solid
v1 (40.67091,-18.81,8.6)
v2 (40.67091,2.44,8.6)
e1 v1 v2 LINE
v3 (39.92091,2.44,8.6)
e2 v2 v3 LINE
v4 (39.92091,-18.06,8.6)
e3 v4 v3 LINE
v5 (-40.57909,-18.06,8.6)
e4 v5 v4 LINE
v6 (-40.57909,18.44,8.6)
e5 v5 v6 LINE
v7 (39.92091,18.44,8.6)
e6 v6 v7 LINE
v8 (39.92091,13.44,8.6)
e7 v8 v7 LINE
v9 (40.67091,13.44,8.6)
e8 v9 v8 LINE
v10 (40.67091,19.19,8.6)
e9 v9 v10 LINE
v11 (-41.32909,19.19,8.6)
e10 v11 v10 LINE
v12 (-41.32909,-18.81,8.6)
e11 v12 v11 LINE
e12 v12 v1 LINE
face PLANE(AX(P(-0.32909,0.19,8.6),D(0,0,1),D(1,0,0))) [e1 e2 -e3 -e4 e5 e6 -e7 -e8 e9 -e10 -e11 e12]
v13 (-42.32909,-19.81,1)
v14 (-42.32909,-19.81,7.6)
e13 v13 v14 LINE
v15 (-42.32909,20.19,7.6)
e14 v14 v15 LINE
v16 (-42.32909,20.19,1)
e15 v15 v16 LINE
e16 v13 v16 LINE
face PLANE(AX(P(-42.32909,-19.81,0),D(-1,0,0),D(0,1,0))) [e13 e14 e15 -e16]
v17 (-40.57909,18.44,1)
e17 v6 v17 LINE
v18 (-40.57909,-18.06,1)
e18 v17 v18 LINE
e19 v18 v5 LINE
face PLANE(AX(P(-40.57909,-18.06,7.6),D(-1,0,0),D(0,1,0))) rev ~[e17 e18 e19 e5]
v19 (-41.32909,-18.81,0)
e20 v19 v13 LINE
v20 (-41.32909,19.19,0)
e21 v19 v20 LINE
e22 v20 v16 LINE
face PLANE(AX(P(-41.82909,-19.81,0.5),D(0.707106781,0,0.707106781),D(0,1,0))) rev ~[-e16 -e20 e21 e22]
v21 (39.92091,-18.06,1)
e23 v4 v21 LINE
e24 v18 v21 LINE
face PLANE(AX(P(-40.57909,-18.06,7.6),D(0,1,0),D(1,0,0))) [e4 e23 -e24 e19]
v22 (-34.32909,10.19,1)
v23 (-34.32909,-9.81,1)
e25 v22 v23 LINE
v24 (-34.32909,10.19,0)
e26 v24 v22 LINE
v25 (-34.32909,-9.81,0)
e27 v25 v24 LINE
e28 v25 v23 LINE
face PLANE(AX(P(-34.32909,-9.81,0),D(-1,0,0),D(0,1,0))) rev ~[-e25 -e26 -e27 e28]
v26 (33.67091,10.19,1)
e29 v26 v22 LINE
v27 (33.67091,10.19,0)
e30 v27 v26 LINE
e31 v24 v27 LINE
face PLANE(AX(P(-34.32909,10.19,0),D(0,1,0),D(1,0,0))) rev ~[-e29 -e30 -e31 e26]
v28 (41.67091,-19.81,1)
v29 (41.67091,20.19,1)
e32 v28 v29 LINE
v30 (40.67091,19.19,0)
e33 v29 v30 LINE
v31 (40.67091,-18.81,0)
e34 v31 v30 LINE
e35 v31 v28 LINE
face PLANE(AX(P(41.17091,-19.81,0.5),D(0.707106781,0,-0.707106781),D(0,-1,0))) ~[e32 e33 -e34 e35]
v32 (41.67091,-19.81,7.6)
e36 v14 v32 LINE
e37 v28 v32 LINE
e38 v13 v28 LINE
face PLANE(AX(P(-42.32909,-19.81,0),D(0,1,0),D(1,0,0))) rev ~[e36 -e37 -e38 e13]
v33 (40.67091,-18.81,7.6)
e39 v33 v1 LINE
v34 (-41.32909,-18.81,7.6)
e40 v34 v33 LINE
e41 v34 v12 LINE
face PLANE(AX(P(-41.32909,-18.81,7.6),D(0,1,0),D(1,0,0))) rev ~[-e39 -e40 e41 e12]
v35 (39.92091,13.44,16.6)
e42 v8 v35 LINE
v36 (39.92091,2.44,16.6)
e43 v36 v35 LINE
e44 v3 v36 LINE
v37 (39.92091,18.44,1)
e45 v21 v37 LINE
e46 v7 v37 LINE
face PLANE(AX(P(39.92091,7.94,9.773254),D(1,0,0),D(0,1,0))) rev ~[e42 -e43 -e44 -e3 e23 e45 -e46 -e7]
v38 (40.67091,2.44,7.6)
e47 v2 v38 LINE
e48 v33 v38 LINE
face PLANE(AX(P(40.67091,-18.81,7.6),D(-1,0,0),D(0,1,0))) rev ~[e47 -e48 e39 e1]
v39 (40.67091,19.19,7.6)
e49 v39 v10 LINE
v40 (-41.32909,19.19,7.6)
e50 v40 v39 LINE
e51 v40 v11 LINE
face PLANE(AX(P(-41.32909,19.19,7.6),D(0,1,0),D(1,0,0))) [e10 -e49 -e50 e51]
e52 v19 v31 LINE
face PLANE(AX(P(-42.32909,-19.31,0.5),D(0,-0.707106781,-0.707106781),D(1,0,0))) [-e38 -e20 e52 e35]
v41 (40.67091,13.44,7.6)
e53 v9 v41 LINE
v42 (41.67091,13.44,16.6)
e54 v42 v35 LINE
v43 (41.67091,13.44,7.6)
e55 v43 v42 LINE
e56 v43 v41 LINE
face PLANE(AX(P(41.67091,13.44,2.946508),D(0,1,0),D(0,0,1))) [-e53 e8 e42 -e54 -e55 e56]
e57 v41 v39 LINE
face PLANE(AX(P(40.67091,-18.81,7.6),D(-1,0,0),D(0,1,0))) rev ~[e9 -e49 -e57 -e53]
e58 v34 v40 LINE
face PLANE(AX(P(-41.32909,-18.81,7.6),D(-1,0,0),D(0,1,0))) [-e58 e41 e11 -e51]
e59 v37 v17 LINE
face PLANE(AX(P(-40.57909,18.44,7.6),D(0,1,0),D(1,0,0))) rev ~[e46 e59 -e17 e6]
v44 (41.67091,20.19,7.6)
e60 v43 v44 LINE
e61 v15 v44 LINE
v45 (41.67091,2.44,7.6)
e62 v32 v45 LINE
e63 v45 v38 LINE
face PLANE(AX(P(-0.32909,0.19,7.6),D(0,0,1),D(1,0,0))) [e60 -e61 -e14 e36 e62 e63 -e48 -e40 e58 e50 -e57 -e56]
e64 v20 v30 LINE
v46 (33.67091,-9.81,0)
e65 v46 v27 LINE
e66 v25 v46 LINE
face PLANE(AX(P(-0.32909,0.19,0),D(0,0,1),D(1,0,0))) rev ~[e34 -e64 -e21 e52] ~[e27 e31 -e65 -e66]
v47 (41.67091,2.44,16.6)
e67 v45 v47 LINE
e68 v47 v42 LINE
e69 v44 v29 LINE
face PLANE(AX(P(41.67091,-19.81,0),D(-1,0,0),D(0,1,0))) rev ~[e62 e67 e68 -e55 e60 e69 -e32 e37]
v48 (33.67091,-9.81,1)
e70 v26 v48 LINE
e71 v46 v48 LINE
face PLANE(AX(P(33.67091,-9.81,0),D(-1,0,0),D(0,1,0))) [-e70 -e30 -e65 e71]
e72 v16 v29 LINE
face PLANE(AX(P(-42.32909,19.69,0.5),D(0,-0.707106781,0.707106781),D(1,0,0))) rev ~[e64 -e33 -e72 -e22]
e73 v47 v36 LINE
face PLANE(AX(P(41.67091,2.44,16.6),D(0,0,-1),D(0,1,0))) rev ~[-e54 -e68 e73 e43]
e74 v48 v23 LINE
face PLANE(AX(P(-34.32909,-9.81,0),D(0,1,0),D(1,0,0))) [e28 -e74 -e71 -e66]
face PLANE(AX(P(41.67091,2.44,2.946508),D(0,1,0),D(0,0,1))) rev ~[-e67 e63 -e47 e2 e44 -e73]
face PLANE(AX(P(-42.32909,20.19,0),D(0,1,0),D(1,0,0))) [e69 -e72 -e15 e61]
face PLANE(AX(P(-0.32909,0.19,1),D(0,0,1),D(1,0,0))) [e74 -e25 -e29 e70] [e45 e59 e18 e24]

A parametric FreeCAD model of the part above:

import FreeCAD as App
import Part
import Sketcher
from FreeCAD import Vector
Q = App.Units.Quantity


def edges_at(feature, points):
    """Names of the edges that pass closest to the given points."""
    edges = feature.Shape.Edges
    near = lambda p: min(range(len(edges)), key=lambda i: edges[i].distToShape(Part.Vertex(*p))[0])
    return sorted({f"Edge{near(p) + 1}" for p in points})


def add_polygon(sketch, points):
    """Adds a closed chain of lines whose ends are joined by coincident constraints."""
    first, n = sketch.GeometryCount, len(points)
    for a, b in zip(points, points[1:] + points[:1]):
        sketch.addGeometry(Part.LineSegment(App.Vector(*a, 0), App.Vector(*b, 0)), False)
    for i in range(n):
        sketch.addConstraint(Sketcher.Constraint("Coincident", first + i, 2, first + (i + 1) % n, 1))

doc = App.newDocument("Part")
body = doc.addObject("PartDesign::Body", "Body")

sketch1 = body.newObject("Sketcher::SketchObject", "Sketch")
sketch1.AttachmentSupport = (doc.getObject("XY_Plane"), [""])
sketch1.MapMode = "FlatFace"
add_polygon(sketch1, [(-42.32909, 20.19), (-42.32909, -19.81), (41.67091, -19.81), (41.67091, 20.19)])
sketch1.addConstraint(Sketcher.Constraint("Vertical", 0))
sketch1.addConstraint(Sketcher.Constraint("Horizontal", 1))
sketch1.addConstraint(Sketcher.Constraint("Vertical", 2))
sketch1.addConstraint(Sketcher.Constraint("Horizontal", 3))
sketch1.addConstraint(Sketcher.Constraint("DistanceX", 1, 1, 1, 2, Q("84 mm")))
sketch1.addConstraint(Sketcher.Constraint("DistanceY", 0, 2, 0, 1, Q("40 mm")))
sketch1.addConstraint(Sketcher.Constraint("DistanceY", 0, 2, -1, 1, Q("19.81 mm")))
sketch1.addConstraint(Sketcher.Constraint("DistanceX", 0, 2, -1, 1, Q("42.32909 mm")))
pad1 = body.newObject("PartDesign::Pad", "Pad")
pad1.Profile = sketch1
pad1.Length = 1

sketch2 = body.newObject("Sketcher::SketchObject", "Sketch001")
sketch2.AttachmentSupport = (doc.getObject("XY_Plane"), [""])
sketch2.MapMode = "FlatFace"
add_polygon(sketch2, [(-42.32909, 20.19), (-42.32909, -19.81), (41.67091, -19.81), (41.67091, 20.19)])
add_polygon(sketch2, [(-40.57909, -18.06), (-40.57909, 18.44), (39.92091, 18.44), (39.92091, -18.06)])
sketch2.addConstraint(Sketcher.Constraint("Vertical", 0))
sketch2.addConstraint(Sketcher.Constraint("Horizontal", 1))
sketch2.addConstraint(Sketcher.Constraint("Vertical", 2))
sketch2.addConstraint(Sketcher.Constraint("Horizontal", 3))
sketch2.addConstraint(Sketcher.Constraint("Vertical", 4))
sketch2.addConstraint(Sketcher.Constraint("Horizontal", 5))
sketch2.addConstraint(Sketcher.Constraint("Vertical", 6))
sketch2.addConstraint(Sketcher.Constraint("Horizontal", 7))
sketch2.addConstraint(Sketcher.Constraint("DistanceX", 1, 1, 1, 2, Q("84 mm")))
sketch2.addConstraint(Sketcher.Constraint("DistanceY", 0, 2, 0, 1, Q("40 mm")))
sketch2.addConstraint(Sketcher.Constraint("DistanceX", 5, 1, 5, 2, Q("80.5 mm")))
sketch2.addConstraint(Sketcher.Constraint("DistanceY", 4, 1, 4, 2, Q("36.5 mm")))
sketch2.addConstraint(Sketcher.Constraint("DistanceY", 0, 2, -1, 1, Q("19.81 mm")))
sketch2.addConstraint(Sketcher.Constraint("DistanceY", -1, 1, 4, 2, Q("18.44 mm")))
sketch2.addConstraint(Sketcher.Constraint("DistanceX", 3, 2, 4, 2, Q("1.75 mm")))
sketch2.addConstraint(Sketcher.Constraint("DistanceX", 0, 2, -1, 1, Q("42.32909 mm")))
pad2 = body.newObject("PartDesign::Pad", "Pad001")
pad2.Profile = sketch2
pad2.Length = 7.6

sketch3 = body.newObject("Sketcher::SketchObject", "Sketch002")
sketch3.AttachmentSupport = (doc.getObject("XY_Plane"), [""])
sketch3.MapMode = "FlatFace"
sketch3.AttachmentOffset = App.Placement(Vector(0, 0, 7.6), App.Rotation())
add_polygon(sketch3, [(-41.32909, 19.19), (-41.32909, -18.81), (40.67091, -18.81), (40.67091, 19.19)])
add_polygon(sketch3, [(39.92091, -18.06), (-40.57909, -18.06), (-40.57909, 18.44), (39.92091, 18.44)])
sketch3.addConstraint(Sketcher.Constraint("Vertical", 0))
sketch3.addConstraint(Sketcher.Constraint("Horizontal", 1))
sketch3.addConstraint(Sketcher.Constraint("Vertical", 2))
sketch3.addConstraint(Sketcher.Constraint("Horizontal", 3))
sketch3.addConstraint(Sketcher.Constraint("Horizontal", 4))
sketch3.addConstraint(Sketcher.Constraint("Vertical", 5))
sketch3.addConstraint(Sketcher.Constraint("Horizontal", 6))
sketch3.addConstraint(Sketcher.Constraint("Vertical", 7))
sketch3.addConstraint(Sketcher.Constraint("DistanceX", 1, 1, 1, 2, Q("82 mm")))
sketch3.addConstraint(Sketcher.Constraint("DistanceY", 0, 2, 0, 1, Q("38 mm")))
sketch3.addConstraint(Sketcher.Constraint("DistanceX", 4, 2, 4, 1, Q("80.5 mm")))
sketch3.addConstraint(Sketcher.Constraint("DistanceY", 5, 1, 5, 2, Q("36.5 mm")))
sketch3.addConstraint(Sketcher.Constraint("DistanceY", 0, 2, -1, 1, Q("18.81 mm")))
sketch3.addConstraint(Sketcher.Constraint("DistanceY", 4, 2, -1, 1, Q("18.06 mm")))
sketch3.addConstraint(Sketcher.Constraint("DistanceX", 0, 2, 4, 2, Q("0.75 mm")))
sketch3.addConstraint(Sketcher.Constraint("DistanceX", 0, 2, -1, 1, Q("41.32909 mm")))
pad3 = body.newObject("PartDesign::Pad", "Pad002")
pad3.Profile = sketch3
pad3.Length = 1

sketch4 = body.newObject("Sketcher::SketchObject", "Sketch003")
sketch4.AttachmentSupport = (doc.getObject("XY_Plane"), [""])
sketch4.MapMode = "FlatFace"
add_polygon(sketch4, [(-34.32909, 10.19), (-34.32909, -9.81), (33.67091, -9.81), (33.67091, 10.19)])
sketch4.addConstraint(Sketcher.Constraint("Vertical", 0))
sketch4.addConstraint(Sketcher.Constraint("Horizontal", 1))
sketch4.addConstraint(Sketcher.Constraint("Vertical", 2))
sketch4.addConstraint(Sketcher.Constraint("Horizontal", 3))
sketch4.addConstraint(Sketcher.Constraint("DistanceX", 1, 1, 1, 2, Q("68 mm")))
sketch4.addConstraint(Sketcher.Constraint("DistanceY", 0, 2, 0, 1, Q("20 mm")))
sketch4.addConstraint(Sketcher.Constraint("DistanceY", 0, 2, -1, 1, Q("9.81 mm")))
sketch4.addConstraint(Sketcher.Constraint("DistanceX", 0, 2, -1, 1, Q("34.32909 mm")))
pocket1 = body.newObject("PartDesign::Pocket", "Pocket")
pocket1.Profile = sketch4
pocket1.Length = 5
pocket1.Reversed = True

sketch5 = body.newObject("Sketcher::SketchObject", "Sketch004")
sketch5.AttachmentSupport = (doc.getObject("YZ_Plane"), [""])
sketch5.MapMode = "FlatFace"
sketch5.AttachmentOffset = App.Placement(Vector(0, 0, 41.67091), App.Rotation())
add_polygon(sketch5, [(2.44, 16.6), (2.44, 2.946508), (13.44, 2.946508), (13.44, 16.6)])
sketch5.addConstraint(Sketcher.Constraint("Vertical", 0))
sketch5.addConstraint(Sketcher.Constraint("Horizontal", 1))
sketch5.addConstraint(Sketcher.Constraint("Vertical", 2))
sketch5.addConstraint(Sketcher.Constraint("Horizontal", 3))
sketch5.addConstraint(Sketcher.Constraint("DistanceX", 1, 1, 1, 2, Q("11 mm")))
sketch5.addConstraint(Sketcher.Constraint("DistanceY", -1, 1, 2, 2, Q("16.6 mm")))
sketch5.addConstraint(Sketcher.Constraint("DistanceX", -1, 1, 0, 2, Q("2.44 mm")))
sketch5.addConstraint(Sketcher.Constraint("DistanceY", 0, 2, 0, 1, Q("13.653492 mm")))
pad4 = body.newObject("PartDesign::Pad", "Pad003")
pad4.Profile = sketch5
pad4.Length = 1.75
pad4.Reversed = True
doc.recompute()

chamfer = body.newObject("PartDesign::Chamfer", "Chamfer")
chamfer.Base = (pad4, edges_at(pad4, [
    (-0.329, -19.81, 0),
    (41.671, 0.19, 0),
    (-0.329, 20.19, 0),
    (-42.329, 0.19, 0),
]))
chamfer.Size = 1

doc.recompute()
